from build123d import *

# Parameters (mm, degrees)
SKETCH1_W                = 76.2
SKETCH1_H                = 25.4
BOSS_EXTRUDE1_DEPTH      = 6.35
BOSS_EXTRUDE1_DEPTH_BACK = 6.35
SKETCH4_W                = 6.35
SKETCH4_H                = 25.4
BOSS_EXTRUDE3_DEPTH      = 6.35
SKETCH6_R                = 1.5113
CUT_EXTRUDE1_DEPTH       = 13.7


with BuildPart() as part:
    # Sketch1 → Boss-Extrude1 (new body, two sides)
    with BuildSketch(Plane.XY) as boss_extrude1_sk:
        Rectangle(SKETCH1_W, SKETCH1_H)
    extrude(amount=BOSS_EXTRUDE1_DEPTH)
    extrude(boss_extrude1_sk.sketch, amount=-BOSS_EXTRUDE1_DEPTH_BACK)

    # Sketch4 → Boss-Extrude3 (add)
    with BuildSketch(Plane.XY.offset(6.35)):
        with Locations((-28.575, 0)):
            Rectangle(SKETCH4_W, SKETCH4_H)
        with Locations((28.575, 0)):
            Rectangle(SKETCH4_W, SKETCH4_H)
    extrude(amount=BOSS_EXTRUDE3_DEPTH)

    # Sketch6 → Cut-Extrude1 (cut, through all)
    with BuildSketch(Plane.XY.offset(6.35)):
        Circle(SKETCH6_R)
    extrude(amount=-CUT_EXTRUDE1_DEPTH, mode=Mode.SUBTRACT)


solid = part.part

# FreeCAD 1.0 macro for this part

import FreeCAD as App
import Part
import Sketcher
Q = App.Units.Quantity


def add_polygon(sketch, points):
    """Adds a closed chain of lines whose ends are joined by coincident constraints."""
    first, n = sketch.GeometryCount, len(points)
    for a, b in zip(points, points[1:] + points[:1]):
        sketch.addGeometry(Part.LineSegment(App.Vector(*a, 0), App.Vector(*b, 0)), False)
    for i in range(n):
        sketch.addConstraint(Sketcher.Constraint("Coincident", first + i, 2, first + (i + 1) % n, 1))

doc = App.newDocument("Part")
body = doc.addObject("PartDesign::Body", "Body")

sketch1 = body.newObject("Sketcher::SketchObject", "Sketch")
sketch1.AttachmentSupport = (doc.getObject("XY_Plane"), [""])
sketch1.MapMode = "FlatFace"
add_polygon(sketch1, [(-38.1, 12.7), (-38.1, -12.7), (38.1, -12.7), (38.1, 12.7)])
sketch1.addConstraint(Sketcher.Constraint("Vertical", 0))
sketch1.addConstraint(Sketcher.Constraint("Horizontal", 1))
sketch1.addConstraint(Sketcher.Constraint("Vertical", 2))
sketch1.addConstraint(Sketcher.Constraint("Horizontal", 3))
sketch1.addConstraint(Sketcher.Constraint("Symmetric", 0, 2, 2, 2, -1, 1))
sketch1.addConstraint(Sketcher.Constraint("DistanceX", 1, 1, 1, 2, Q("3 in")))
sketch1.addConstraint(Sketcher.Constraint("DistanceY", 0, 2, 0, 1, Q("1 in")))
pad1 = body.newObject("PartDesign::Pad", "Pad")
pad1.Profile = sketch1
pad1.Type = "TwoLengths"
pad1.Length = Q("0.25 in")
pad1.Length2 = Q("0.25 in")

sketch2 = body.newObject("Sketcher::SketchObject", "Sketch001")
sketch2.AttachmentSupport = (doc.getObject("XY_Plane"), [""])
sketch2.MapMode = "FlatFace"
sketch2.AttachmentOffset = App.Placement(App.Vector(0, 0, 0.25 * 25.4), App.Rotation())
add_polygon(sketch2, [(-31.75, 12.7), (-31.75, -12.7), (-25.4, -12.7), (-25.4, 12.7)])
add_polygon(sketch2, [(25.4, 12.7), (25.4, -12.7), (31.75, -12.7), (31.75, 12.7)])
sketch2.addConstraint(Sketcher.Constraint("Vertical", 0))
sketch2.addConstraint(Sketcher.Constraint("Horizontal", 1))
sketch2.addConstraint(Sketcher.Constraint("Vertical", 2))
sketch2.addConstraint(Sketcher.Constraint("Horizontal", 3))
sketch2.addConstraint(Sketcher.Constraint("Vertical", 4))
sketch2.addConstraint(Sketcher.Constraint("Horizontal", 5))
sketch2.addConstraint(Sketcher.Constraint("Vertical", 6))
sketch2.addConstraint(Sketcher.Constraint("Horizontal", 7))
sketch2.addConstraint(Sketcher.Constraint("Symmetric", 2, 2, 4, 2, -1, 1))
sketch2.addConstraint(Sketcher.Constraint("Symmetric", 0, 2, 6, 2, -1, 1))
sketch2.addConstraint(Sketcher.Constraint("Horizontal", 1, 2, 4, 2))
sketch2.addConstraint(Sketcher.Constraint("DistanceY", 0, 2, 0, 1, Q("1 in")))
sketch2.addConstraint(Sketcher.Constraint("DistanceX", 1, 2, -1, 1, Q("1 in")))
sketch2.addConstraint(Sketcher.Constraint("DistanceX", 1, 1, 1, 2, Q("0.25 in")))
pad2 = body.newObject("PartDesign::Pad", "Pad001")
pad2.Profile = sketch2
pad2.Length = Q("0.25 in")

sketch3 = body.newObject("Sketcher::SketchObject", "Sketch002")
sketch3.AttachmentSupport = (doc.getObject("XY_Plane"), [""])
sketch3.MapMode = "FlatFace"
sketch3.AttachmentOffset = App.Placement(App.Vector(0, 0, 0.25 * 25.4), App.Rotation())
sketch3.addGeometry(Part.Circle(App.Vector(0, 0, 0), App.Vector(0, 0, 1), 1.5113), False)
sketch3.addConstraint(Sketcher.Constraint("Coincident", 0, 3, -1, 1))
sketch3.addConstraint(Sketcher.Constraint("Diameter", 0, Q("0.119 in")))
pocket1 = body.newObject("PartDesign::Pocket", "Pocket")
pocket1.Profile = sketch3
pocket1.Type = "ThroughAll"

doc.recompute()
